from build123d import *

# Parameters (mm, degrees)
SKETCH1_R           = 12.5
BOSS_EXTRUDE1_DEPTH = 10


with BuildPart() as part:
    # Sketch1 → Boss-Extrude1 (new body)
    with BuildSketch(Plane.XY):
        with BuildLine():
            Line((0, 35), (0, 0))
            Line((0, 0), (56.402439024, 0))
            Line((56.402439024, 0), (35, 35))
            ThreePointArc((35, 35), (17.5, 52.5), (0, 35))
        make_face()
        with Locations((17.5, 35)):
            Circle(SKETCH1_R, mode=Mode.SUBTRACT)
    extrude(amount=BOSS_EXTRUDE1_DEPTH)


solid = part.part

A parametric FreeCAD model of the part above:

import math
import FreeCAD as App
import Part
import Sketcher
from FreeCAD import Vector
Q = App.Units.Quantity

doc = App.newDocument("Part")
body = doc.addObject("PartDesign::Body", "Body")

# Sketch on XY plane
sketch1 = body.newObject("Sketcher::SketchObject", "Sketch")
sketch1.AttachmentSupport = (doc.getObject("XY_Plane"), [""])
sketch1.MapMode = "FlatFace"
sketch1.addGeometry([
    Part.LineSegment(Vector(0, 35, 0), Vector(0, 0, 0)),  # 0
    Part.LineSegment(Vector(0, 0, 0), Vector(56, 0, 0)),  # 1
    Part.LineSegment(Vector(56, 0, 0), Vector(35, 35, 0)),  # 2
    Part.ArcOfCircle(Part.Circle(Vector(18, 35, 0), Vector(0, 0, 1), 18), math.radians(0), math.radians(180)),  # 3
    Part.Circle(Vector(18, 35, 0), Vector(0, 0, 1), 12),  # 4
], False)
sketch1.addConstraint([
    Sketcher.Constraint("Coincident", 0, 2, 1, 1),
    Sketcher.Constraint("Coincident", 1, 2, 2, 1),
    Sketcher.Constraint("Coincident", 2, 2, 3, 1),
    Sketcher.Constraint("Tangent", 3, 2, 0, 1),
    Sketcher.Constraint("Vertical", 0),
    Sketcher.Constraint("Horizontal", 1),
    Sketcher.Constraint("Coincident", 0, 2, -1, 1),
    Sketcher.Constraint("Coincident", 4, 3, 3, 3),
    Sketcher.Constraint("Horizontal", 4, 3, 2, 2),
    Sketcher.Constraint("Diameter", 4, Q("25 mm")),
    Sketcher.Constraint("Radius", 3, Q("17.5 mm")),
    Sketcher.Constraint("DistanceY", 0, 2, 0, 1, Q("35 mm")),
    Sketcher.Constraint("DistanceX", 1, 1, 1, 2, Q("56.402439 mm")),
])
pad1 = body.newObject("PartDesign::Pad", "Pad")
pad1.Profile = sketch1
pad1.Length = 10

doc.recompute()
